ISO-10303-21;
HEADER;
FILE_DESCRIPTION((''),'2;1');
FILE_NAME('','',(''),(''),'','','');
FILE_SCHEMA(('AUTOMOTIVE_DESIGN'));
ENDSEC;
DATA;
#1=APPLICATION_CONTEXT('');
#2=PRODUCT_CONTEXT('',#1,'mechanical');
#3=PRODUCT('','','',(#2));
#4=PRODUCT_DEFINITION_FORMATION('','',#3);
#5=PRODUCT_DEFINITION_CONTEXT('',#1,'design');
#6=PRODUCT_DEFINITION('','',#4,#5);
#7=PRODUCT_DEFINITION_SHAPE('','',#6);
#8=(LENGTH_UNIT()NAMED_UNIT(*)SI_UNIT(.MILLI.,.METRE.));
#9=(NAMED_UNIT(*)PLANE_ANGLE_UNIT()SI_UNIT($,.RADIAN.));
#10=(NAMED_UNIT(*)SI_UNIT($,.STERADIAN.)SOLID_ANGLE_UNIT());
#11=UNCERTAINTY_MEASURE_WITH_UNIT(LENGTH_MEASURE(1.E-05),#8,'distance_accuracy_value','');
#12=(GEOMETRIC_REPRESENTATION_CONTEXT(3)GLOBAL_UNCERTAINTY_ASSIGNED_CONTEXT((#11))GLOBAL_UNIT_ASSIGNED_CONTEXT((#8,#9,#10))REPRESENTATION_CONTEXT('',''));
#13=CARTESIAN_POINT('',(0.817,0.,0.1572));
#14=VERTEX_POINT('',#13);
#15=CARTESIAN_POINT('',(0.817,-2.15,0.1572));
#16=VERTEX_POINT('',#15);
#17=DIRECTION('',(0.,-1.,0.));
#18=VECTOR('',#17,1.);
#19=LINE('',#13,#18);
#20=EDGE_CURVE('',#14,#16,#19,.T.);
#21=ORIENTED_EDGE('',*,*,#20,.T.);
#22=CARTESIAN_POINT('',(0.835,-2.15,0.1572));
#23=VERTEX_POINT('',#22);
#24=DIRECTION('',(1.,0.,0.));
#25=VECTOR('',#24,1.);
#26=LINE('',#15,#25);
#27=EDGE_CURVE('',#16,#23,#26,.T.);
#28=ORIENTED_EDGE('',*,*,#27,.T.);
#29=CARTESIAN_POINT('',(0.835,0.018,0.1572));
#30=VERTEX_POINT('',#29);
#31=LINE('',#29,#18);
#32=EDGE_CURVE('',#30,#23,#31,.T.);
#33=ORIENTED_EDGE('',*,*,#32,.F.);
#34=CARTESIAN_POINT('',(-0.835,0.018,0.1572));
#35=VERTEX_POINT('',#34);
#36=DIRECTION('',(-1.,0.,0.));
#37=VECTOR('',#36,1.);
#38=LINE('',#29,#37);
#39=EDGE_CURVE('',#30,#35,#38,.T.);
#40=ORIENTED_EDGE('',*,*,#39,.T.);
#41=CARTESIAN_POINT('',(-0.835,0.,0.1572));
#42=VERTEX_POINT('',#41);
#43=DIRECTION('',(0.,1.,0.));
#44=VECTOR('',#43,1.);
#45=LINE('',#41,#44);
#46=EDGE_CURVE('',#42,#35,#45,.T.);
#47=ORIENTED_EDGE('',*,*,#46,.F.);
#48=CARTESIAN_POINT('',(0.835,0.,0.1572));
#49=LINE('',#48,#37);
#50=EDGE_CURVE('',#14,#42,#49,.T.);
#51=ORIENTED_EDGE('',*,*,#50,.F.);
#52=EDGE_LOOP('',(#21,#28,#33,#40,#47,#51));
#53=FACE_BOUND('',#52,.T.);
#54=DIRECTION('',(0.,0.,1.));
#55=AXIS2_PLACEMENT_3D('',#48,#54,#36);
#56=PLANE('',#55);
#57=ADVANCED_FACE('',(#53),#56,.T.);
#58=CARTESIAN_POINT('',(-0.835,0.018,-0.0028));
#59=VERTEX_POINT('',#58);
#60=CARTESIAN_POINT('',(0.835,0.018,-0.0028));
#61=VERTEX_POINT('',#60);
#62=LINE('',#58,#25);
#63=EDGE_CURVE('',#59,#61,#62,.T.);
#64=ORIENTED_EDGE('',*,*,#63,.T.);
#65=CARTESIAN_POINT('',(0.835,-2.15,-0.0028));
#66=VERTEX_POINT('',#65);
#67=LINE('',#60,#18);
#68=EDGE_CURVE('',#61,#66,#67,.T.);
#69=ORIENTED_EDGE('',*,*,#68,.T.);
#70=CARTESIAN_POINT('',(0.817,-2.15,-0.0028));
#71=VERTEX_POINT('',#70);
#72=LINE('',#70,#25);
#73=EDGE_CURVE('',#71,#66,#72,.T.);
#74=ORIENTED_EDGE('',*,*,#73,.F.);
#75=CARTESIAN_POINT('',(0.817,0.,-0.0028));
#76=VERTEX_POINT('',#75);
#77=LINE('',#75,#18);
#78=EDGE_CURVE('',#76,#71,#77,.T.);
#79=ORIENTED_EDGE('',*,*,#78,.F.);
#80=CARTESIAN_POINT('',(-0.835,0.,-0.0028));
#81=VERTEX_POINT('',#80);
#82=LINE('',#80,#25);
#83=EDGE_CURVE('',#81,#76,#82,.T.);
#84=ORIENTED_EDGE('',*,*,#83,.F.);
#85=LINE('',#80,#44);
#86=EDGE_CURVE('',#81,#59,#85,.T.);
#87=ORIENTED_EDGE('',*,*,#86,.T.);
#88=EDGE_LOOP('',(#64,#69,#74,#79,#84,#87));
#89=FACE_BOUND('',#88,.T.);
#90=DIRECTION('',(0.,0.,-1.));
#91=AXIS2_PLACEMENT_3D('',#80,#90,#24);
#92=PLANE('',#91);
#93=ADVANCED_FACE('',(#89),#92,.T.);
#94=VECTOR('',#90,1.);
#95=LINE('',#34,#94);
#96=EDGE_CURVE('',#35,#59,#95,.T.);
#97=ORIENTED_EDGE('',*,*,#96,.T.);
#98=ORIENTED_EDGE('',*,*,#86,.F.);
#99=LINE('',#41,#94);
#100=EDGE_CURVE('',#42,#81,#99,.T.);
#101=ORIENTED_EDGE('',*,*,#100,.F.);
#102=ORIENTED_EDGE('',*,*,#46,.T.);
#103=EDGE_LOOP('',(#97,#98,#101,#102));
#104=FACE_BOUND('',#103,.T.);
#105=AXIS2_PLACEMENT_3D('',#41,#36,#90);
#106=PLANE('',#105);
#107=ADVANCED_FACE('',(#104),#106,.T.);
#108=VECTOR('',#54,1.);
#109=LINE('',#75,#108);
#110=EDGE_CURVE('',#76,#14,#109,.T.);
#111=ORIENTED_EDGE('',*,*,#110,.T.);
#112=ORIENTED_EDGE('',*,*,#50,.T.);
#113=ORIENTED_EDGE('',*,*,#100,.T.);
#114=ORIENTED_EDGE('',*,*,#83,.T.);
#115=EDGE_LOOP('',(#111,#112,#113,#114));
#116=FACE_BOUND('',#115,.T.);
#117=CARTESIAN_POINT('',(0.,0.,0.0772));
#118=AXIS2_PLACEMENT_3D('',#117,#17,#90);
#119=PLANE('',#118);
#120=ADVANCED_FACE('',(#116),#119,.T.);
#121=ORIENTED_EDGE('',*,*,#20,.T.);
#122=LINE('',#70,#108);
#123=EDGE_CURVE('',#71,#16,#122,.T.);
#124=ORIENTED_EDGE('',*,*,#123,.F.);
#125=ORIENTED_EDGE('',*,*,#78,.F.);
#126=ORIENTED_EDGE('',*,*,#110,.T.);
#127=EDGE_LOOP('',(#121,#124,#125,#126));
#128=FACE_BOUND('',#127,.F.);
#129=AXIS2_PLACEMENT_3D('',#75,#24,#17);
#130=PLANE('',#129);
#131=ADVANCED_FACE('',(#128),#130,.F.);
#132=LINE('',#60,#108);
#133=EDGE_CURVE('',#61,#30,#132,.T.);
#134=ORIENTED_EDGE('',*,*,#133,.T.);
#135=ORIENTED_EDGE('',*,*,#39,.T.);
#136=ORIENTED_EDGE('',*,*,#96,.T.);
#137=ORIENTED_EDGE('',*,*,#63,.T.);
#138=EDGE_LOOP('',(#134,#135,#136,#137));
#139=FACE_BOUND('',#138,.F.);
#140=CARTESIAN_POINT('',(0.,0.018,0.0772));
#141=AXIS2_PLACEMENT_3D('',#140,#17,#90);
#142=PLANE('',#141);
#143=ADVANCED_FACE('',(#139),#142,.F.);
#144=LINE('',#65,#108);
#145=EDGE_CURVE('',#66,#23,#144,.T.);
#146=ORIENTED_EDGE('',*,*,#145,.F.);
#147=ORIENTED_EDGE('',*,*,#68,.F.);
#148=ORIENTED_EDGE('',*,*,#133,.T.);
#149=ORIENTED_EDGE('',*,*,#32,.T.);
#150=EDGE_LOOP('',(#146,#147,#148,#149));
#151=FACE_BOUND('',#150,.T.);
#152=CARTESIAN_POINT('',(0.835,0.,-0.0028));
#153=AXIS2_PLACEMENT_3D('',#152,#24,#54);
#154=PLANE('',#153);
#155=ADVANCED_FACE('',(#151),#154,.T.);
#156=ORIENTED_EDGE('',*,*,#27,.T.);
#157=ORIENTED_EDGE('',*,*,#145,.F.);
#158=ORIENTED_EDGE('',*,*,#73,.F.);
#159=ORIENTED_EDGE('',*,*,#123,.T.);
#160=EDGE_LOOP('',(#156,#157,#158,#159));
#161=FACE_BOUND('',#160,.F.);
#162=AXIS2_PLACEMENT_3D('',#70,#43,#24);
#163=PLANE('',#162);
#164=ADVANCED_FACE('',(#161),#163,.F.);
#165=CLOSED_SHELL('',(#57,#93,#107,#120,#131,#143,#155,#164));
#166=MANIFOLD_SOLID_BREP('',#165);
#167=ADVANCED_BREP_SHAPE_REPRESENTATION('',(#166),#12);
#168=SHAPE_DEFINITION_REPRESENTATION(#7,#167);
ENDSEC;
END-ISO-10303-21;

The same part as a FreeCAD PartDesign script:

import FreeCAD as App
import Part
import Sketcher

V = App.Vector
Q = App.Units.Quantity


def add_polygon(sketch, points):
    """Adds a closed chain of lines whose ends are joined by coincident constraints."""
    first, n = sketch.GeometryCount, len(points)
    for a, b in zip(points, points[1:] + points[:1]):
        sketch.addGeometry(Part.LineSegment(App.Vector(*a, 0), App.Vector(*b, 0)), False)
    for i in range(n):
        sketch.addConstraint(Sketcher.Constraint("Coincident", first + i, 2, first + (i + 1) % n, 1))

doc = App.newDocument("Part")
params = doc.addObject("Spreadsheet::Sheet", "Params")
for row, (alias, value) in enumerate([
    ("sketch1_height", "0.16 mm"),
    ("pad1_length", "0.018 mm"),
    ("sketch2_height", "2.15 mm"),
    ("pad2_length", "0.16 mm"),
], start=1):
    params.set(f"A{row}", alias)
    params.set(f"B{row}", "=" + value)
    params.setAlias(f"B{row}", alias)

body = doc.addObject("PartDesign::Body", "Body")

sketch1 = doc.addObject("Sketcher::SketchObject", "Sketch")
body.addObject(sketch1)
sketch1.AttachmentSupport = (doc.XZ_Plane, [""])
sketch1.MapMode = "FlatFace"
add_polygon(sketch1, [(-0.83, 0.16), (-0.83, 0), (0.83, 0), (0.83, 0.16)])
sketch1.addConstraint([
    Sketcher.Constraint("Vertical", 0),
    Sketcher.Constraint("Horizontal", 1),
    Sketcher.Constraint("Vertical", 2),
    Sketcher.Constraint("Horizontal", 3),
    Sketcher.Constraint("DistanceX", 0, 2, -1, 1, Q("0.835 mm")),
    Sketcher.Constraint("DistanceX", -1, 1, 1, 2, Q("0.835 mm")),
    Sketcher.Constraint("DistanceY", 0, 2, 0, 1, Q("0.16 mm")),
    Sketcher.Constraint("DistanceY", 0, 2, -1, 1, Q("0.0028 mm")),
])
sketch1.setExpression("Constraints[10]", "Params.sketch1_height")
pad1 = doc.addObject("PartDesign::Pad", "Pad")
body.addObject(pad1)
pad1.Profile = sketch1
pad1.setExpression("Length", "Params.pad1_length")
pad1.Reversed = True

sketch2 = doc.addObject("Sketcher::SketchObject", "Sketch001")
body.addObject(sketch2)
sketch2.AttachmentSupport = (doc.XY_Plane, [""])
sketch2.MapMode = "FlatFace"
sketch2.AttachmentOffset = App.Placement(V(0, 0, -0.0028), App.Rotation())
add_polygon(sketch2, [(0.835, -2.15), (0.835, 0), (0.817, 0), (0.817, -2.15)])
sketch2.addConstraint([
    Sketcher.Constraint("Vertical", 0),
    Sketcher.Constraint("Horizontal", 1),
    Sketcher.Constraint("Vertical", 2),
    Sketcher.Constraint("Horizontal", 3),
    Sketcher.Constraint("PointOnObject", 0, 2, -1),
    Sketcher.Constraint("DistanceX", -1, 1, 0, 2, Q("0.835 mm")),
    Sketcher.Constraint("DistanceX", -1, 1, 1, 2, Q("0.817 mm")),
    Sketcher.Constraint("DistanceY", 0, 1, 0, 2, Q("2.15 mm")),
])
sketch2.setExpression("Constraints[11]", "Params.sketch2_height")
pad2 = doc.addObject("PartDesign::Pad", "Pad001")
body.addObject(pad2)
pad2.Profile = sketch2
pad2.setExpression("Length", "Params.pad2_length")

doc.recompute()
